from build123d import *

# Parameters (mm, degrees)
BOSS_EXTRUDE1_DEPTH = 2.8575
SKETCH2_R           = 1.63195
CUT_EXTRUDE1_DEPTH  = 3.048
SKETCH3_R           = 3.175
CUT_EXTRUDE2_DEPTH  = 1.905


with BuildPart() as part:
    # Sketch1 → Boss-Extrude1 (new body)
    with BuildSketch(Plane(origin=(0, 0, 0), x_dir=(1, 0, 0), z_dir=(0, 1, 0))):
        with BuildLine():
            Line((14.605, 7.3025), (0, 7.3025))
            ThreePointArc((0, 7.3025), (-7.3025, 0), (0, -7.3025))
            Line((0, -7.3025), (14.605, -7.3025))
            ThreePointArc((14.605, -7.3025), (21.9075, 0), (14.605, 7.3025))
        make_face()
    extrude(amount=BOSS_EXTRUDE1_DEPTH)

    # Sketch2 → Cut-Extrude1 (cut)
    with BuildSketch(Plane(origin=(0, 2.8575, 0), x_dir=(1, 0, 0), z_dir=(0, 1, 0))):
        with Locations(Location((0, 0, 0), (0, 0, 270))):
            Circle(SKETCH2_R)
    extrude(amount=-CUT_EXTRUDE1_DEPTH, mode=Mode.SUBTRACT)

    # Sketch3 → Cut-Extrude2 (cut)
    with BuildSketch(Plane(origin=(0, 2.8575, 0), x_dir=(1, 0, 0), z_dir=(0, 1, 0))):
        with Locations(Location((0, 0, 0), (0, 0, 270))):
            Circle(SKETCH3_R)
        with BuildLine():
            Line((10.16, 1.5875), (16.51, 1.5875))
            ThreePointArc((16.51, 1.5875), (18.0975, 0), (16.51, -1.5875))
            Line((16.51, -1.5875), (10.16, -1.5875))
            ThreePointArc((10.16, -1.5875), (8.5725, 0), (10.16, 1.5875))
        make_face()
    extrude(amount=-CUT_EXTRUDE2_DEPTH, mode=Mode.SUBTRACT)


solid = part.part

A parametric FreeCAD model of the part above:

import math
import FreeCAD as App
import Part
import Sketcher
Q = App.Units.Quantity

doc = App.newDocument("Part")
body = doc.addObject("PartDesign::Body", "Body")

sketch1 = doc.addObject("Sketcher::SketchObject", "Sketch")
body.addObject(sketch1)
sketch1.AttachmentSupport = (doc.XZ_Plane, [""])
sketch1.MapMode = "FlatFace"
sketch1.addGeometry([
    Part.LineSegment(App.Vector(15, -7, 0), App.Vector(0, -7, 0)),
    Part.ArcOfCircle(Part.Circle(App.Vector(0, 0, 0), App.Vector(0, 0, 1), 7), math.radians(90), math.radians(270)),
    Part.LineSegment(App.Vector(0, 7, 0), App.Vector(15, 7, 0)),
    Part.ArcOfCircle(Part.Circle(App.Vector(15, 0, 0), App.Vector(0, 0, 1), 7), math.radians(-90), math.radians(90)),
], False)
sketch1.addConstraint([
    Sketcher.Constraint("Tangent", 0, 2, 1, 2),
    Sketcher.Constraint("Tangent", 1, 1, 2, 1),
    Sketcher.Constraint("Tangent", 2, 2, 3, 2),
    Sketcher.Constraint("Tangent", 3, 1, 0, 1),
    Sketcher.Constraint("Horizontal", 0),
    Sketcher.Constraint("Horizontal", 2),
    Sketcher.Constraint("Coincident", 1, 3, -1, 1),
    Sketcher.Constraint("Radius", 1, Q("0.2875 in")),
    Sketcher.Constraint("DistanceX", 0, 2, 0, 1, Q("0.575 in")),
])
pad1 = doc.addObject("PartDesign::Pad", "Pad")
body.addObject(pad1)
pad1.Profile = sketch1
pad1.Length = Q("0.1125 in")
pad1.Reversed = True

sketch2 = doc.addObject("Sketcher::SketchObject", "Sketch001")
body.addObject(sketch2)
sketch2.AttachmentSupport = (doc.XZ_Plane, [""])
sketch2.MapMode = "FlatFace"
sketch2.AttachmentOffset = App.Placement(App.Vector(0, 0, -0.1125 * 25.4), App.Rotation())
sketch2.addGeometry(Part.Circle(App.Vector(0, 0, 0), App.Vector(0, 0, 1), 1.6), False)
sketch2.addConstraint([
    Sketcher.Constraint("Coincident", 0, 3, -1, 1),
    Sketcher.Constraint("Diameter", 0, Q("0.1285 in")),
])
pocket1 = doc.addObject("PartDesign::Pocket", "Pocket")
body.addObject(pocket1)
pocket1.Profile = sketch2
pocket1.Length = Q("0.12 in")
pocket1.Reversed = True

sketch3 = doc.addObject("Sketcher::SketchObject", "Sketch002")
body.addObject(sketch3)
sketch3.AttachmentSupport = (doc.XZ_Plane, [""])
sketch3.MapMode = "FlatFace"
sketch3.AttachmentOffset = App.Placement(App.Vector(0, 0, -0.1125 * 25.4), App.Rotation())
sketch3.addGeometry([
    Part.Circle(App.Vector(0, 0, 0), App.Vector(0, 0, 1), 3.2),
    Part.LineSegment(App.Vector(16.5, -1.6, 0), App.Vector(10.2, -1.6, 0)),
    Part.ArcOfCircle(Part.Circle(App.Vector(10.2, 0, 0), App.Vector(0, 0, 1), 1.6), math.radians(90), math.radians(270)),
    Part.LineSegment(App.Vector(10.2, 1.6, 0), App.Vector(16.5, 1.6, 0)),
    Part.ArcOfCircle(Part.Circle(App.Vector(16.5, 0, 0), App.Vector(0, 0, 1), 1.6), math.radians(-90), math.radians(90)),
], False)
sketch3.addConstraint([
    Sketcher.Constraint("Tangent", 1, 2, 2, 2),
    Sketcher.Constraint("Tangent", 2, 1, 3, 1),
    Sketcher.Constraint("Tangent", 3, 2, 4, 2),
    Sketcher.Constraint("Tangent", 4, 1, 1, 1),
    Sketcher.Constraint("Horizontal", 1),
    Sketcher.Constraint("Horizontal", 3),
    Sketcher.Constraint("Coincident", 0, 3, -1, 1),
    Sketcher.Constraint("PointOnObject", 2, 3, -1),
    Sketcher.Constraint("Diameter", 0, Q("0.25 in")),
    Sketcher.Constraint("Radius", 2, Q("0.0625 in")),
    Sketcher.Constraint("DistanceX", 1, 2, 1, 1, Q("0.25 in")),
    Sketcher.Constraint("DistanceX", -1, 1, 2, 3, Q("0.4 in")),
])
pocket2 = doc.addObject("PartDesign::Pocket", "Pocket001")
body.addObject(pocket2)
pocket2.Profile = sketch3
pocket2.Length = Q("0.075 in")
pocket2.Reversed = True

doc.recompute()
